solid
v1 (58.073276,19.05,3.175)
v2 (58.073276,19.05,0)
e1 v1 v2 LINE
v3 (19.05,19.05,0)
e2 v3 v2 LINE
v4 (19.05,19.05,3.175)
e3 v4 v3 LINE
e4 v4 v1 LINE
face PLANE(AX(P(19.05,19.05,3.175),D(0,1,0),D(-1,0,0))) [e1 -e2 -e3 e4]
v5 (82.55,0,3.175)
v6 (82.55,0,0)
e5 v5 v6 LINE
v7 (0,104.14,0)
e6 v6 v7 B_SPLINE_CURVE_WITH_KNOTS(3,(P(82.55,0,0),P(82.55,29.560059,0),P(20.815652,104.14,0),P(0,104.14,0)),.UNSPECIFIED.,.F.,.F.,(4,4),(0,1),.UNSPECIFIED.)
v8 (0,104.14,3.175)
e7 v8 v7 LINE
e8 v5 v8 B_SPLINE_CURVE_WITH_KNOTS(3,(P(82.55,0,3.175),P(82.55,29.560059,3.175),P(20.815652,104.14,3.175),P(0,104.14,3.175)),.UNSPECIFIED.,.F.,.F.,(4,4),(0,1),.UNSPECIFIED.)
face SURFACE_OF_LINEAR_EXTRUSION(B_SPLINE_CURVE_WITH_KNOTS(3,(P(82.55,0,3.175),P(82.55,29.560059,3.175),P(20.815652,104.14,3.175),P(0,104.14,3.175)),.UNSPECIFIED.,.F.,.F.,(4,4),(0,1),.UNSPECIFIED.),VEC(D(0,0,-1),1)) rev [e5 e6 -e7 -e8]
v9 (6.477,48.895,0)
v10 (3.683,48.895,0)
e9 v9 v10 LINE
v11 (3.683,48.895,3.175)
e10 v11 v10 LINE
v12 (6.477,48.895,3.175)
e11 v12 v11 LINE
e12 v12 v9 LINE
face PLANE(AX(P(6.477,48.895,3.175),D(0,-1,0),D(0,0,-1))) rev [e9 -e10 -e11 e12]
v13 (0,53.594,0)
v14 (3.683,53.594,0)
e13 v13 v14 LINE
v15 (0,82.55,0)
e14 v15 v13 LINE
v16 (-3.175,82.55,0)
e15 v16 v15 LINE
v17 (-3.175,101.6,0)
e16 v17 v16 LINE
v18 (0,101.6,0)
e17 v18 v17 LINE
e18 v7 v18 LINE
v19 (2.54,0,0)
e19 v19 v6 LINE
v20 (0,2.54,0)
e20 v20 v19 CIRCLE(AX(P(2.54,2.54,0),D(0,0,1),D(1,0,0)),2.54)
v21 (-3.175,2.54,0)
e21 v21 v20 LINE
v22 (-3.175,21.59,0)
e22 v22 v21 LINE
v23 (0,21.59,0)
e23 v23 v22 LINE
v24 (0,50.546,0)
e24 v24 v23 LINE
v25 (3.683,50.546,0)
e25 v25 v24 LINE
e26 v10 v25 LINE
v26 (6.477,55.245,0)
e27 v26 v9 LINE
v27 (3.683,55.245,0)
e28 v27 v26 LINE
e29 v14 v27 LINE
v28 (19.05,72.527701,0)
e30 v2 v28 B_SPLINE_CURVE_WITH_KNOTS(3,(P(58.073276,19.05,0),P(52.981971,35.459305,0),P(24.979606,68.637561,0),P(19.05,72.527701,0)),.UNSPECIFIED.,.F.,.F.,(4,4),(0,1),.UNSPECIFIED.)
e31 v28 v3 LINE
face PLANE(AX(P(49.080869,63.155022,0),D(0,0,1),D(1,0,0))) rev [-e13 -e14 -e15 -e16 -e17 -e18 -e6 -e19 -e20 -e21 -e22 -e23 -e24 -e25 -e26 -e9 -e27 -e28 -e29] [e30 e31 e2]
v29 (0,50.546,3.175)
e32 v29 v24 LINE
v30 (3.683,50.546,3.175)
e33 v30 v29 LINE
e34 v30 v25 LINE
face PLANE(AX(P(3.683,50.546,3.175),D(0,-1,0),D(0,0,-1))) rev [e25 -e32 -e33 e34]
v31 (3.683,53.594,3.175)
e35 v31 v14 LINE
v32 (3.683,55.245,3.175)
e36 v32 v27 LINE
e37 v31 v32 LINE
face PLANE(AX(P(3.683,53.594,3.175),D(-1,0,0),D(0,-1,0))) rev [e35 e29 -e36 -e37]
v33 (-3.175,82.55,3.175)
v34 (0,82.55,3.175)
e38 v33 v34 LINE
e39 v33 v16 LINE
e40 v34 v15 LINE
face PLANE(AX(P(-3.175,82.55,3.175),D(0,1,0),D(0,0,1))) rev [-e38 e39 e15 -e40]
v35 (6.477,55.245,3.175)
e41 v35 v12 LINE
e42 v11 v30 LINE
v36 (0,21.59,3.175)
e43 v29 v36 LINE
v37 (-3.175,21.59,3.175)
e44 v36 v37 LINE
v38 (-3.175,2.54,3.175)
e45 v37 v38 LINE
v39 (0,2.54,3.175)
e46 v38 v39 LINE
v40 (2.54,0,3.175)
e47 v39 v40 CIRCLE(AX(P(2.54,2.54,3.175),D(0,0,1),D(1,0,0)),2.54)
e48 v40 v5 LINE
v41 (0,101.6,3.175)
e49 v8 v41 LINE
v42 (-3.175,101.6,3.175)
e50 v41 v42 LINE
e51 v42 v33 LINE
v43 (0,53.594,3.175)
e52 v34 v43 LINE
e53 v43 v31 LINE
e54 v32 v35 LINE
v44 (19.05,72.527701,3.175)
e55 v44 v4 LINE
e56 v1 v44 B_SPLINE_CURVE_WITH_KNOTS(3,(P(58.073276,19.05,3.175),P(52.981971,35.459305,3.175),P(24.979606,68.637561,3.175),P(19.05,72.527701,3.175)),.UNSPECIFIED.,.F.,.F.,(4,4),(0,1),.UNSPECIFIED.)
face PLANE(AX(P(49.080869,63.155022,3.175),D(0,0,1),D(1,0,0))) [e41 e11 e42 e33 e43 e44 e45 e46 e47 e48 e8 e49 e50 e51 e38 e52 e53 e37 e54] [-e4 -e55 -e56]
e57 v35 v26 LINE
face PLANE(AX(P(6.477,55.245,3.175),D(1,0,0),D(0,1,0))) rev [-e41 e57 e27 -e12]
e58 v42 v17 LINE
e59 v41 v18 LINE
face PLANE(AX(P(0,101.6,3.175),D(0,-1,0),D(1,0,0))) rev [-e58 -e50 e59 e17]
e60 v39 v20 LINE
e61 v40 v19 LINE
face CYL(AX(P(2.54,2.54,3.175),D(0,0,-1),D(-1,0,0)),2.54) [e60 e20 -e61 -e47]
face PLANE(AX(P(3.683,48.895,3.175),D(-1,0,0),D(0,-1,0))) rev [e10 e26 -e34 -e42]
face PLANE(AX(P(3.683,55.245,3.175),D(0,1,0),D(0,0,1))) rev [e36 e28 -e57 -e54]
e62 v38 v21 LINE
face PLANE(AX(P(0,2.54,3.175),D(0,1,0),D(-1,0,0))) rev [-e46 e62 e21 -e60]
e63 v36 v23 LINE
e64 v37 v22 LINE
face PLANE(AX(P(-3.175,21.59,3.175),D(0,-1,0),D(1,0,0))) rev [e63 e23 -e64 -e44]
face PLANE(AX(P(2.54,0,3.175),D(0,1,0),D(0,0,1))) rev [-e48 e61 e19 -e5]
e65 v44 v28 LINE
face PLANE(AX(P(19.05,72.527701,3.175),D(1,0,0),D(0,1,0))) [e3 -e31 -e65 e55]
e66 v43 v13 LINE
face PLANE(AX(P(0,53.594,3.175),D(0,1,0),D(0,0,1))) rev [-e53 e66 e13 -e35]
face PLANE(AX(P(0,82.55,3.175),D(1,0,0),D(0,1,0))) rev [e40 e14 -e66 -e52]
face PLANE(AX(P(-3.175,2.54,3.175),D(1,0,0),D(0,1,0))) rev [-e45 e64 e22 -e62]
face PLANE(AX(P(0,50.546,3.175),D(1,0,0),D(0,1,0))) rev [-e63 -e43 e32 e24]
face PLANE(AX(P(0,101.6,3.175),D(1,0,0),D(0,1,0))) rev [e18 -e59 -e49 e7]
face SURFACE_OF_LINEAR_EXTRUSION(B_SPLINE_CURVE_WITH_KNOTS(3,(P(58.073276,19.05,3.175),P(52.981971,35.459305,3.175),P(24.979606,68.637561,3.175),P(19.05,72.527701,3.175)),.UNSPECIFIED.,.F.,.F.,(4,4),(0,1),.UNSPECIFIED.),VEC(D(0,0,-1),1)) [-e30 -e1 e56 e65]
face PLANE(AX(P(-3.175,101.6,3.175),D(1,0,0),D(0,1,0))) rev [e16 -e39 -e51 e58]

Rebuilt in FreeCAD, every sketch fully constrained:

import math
import FreeCAD as App
import Part
import Sketcher

V = App.Vector
Q = App.Units.Quantity

doc = App.newDocument("Part")
params = doc.addObject("Spreadsheet::Sheet", "Params")
for row, (alias, value) in enumerate([
    ("sketch1_radius", "0.1 in"),
    ("sketch1_height", "0.1 in"),
    ("sketch1_width", "0.11 in"),
    ("sketch1_height2", "1.14 in"),
    ("sketch1_height3", "0.25 in"),
    ("pad1_length", "0.125 in"),
], start=1):
    params.set(f"A{row}", alias)
    params.set(f"B{row}", "=" + value)
    params.setAlias(f"B{row}", alias)

body = doc.addObject("PartDesign::Body", "Body")

# Sketch on XY plane
sketch1 = doc.addObject("Sketcher::SketchObject", "Sketch")
body.addObject(sketch1)
sketch1.AttachmentSupport = (doc.XY_Plane, [""])
sketch1.MapMode = "FlatFace"
sketch1.addGeometry([
    Part.LineSegment(V(0, 82.55, 0), V(0, 53.594, 0)),  # 0
    Part.LineSegment(V(0, 53.594, 0), V(3.683, 53.594, 0)),  # 1
    Part.LineSegment(V(3.683, 53.594, 0), V(3.683, 55.245, 0)),  # 2
    Part.LineSegment(V(3.683, 55.245, 0), V(6.477, 55.245, 0)),  # 3
    Part.LineSegment(V(6.477, 55.245, 0), V(6.477, 48.895, 0)),  # 4
    Part.LineSegment(V(6.477, 48.895, 0), V(3.683, 48.895, 0)),  # 5
    Part.LineSegment(V(3.683, 48.895, 0), V(3.683, 50.546, 0)),  # 6
    Part.LineSegment(V(3.683, 50.546, 0), V(0, 50.546, 0)),  # 7
    Part.LineSegment(V(0, 50.546, 0), V(0, 21.59, 0)),  # 8
    Part.LineSegment(V(0, 21.59, 0), V(-3.175, 21.59, 0)),  # 9
    Part.LineSegment(V(-3.175, 21.59, 0), V(-3.175, 2.54, 0)),  # 10
    Part.LineSegment(V(-3.175, 2.54, 0), V(0, 2.54, 0)),  # 11
    Part.ArcOfCircle(Part.Circle(V(2.54, 2.54, 0), V(0, 0, 1), 2.54), math.radians(-180), math.radians(-90)),  # 12
    Part.LineSegment(V(2.54, 0, 0), V(82.55, 0, 0)),  # 13
    Part.BSplineCurve([V(0, 104.14, 0), V(20.815652, 104.14, 0), V(82.55, 29.560059, 0), V(82.55, 0, 0)], [4, 4], [0, 1], False, 3, [1, 1, 1, 1], False),  # 14
    Part.LineSegment(V(0, 104.14, 0), V(0, 101.6, 0)),  # 15
    Part.LineSegment(V(0, 101.6, 0), V(-3.175, 101.6, 0)),  # 16
    Part.LineSegment(V(-3.175, 101.6, 0), V(-3.175, 82.55, 0)),  # 17
    Part.LineSegment(V(-3.175, 82.55, 0), V(0, 82.55, 0)),  # 18
    Part.LineSegment(V(19.05, 19.05, 0), V(19.05, 72.527701, 0)),  # 19
    Part.BSplineCurve([V(19.05, 72.527701, 0), V(24.979606, 68.637561, 0), V(52.981971, 35.459305, 0), V(58.073276, 19.05, 0)], [4, 4], [0, 1], False, 3, [1, 1, 1, 1], False),  # 20
    Part.LineSegment(V(58.073276, 19.05, 0), V(19.05, 19.05, 0)),  # 21
], False)
sketch1.addConstraint([
    Sketcher.Constraint("Block", 14),
    Sketcher.Constraint("Block", 20),
    Sketcher.Constraint("Coincident", 0, 2, 1, 1),
    Sketcher.Constraint("Coincident", 1, 2, 2, 1),
    Sketcher.Constraint("Coincident", 2, 2, 3, 1),
    Sketcher.Constraint("Coincident", 3, 2, 4, 1),
    Sketcher.Constraint("Coincident", 4, 2, 5, 1),
    Sketcher.Constraint("Coincident", 5, 2, 6, 1),
    Sketcher.Constraint("Coincident", 6, 2, 7, 1),
    Sketcher.Constraint("Coincident", 7, 2, 8, 1),
    Sketcher.Constraint("Coincident", 8, 2, 9, 1),
    Sketcher.Constraint("Coincident", 9, 2, 10, 1),
    Sketcher.Constraint("Coincident", 10, 2, 11, 1),
    Sketcher.Constraint("Coincident", 11, 2, 12, 1),
    Sketcher.Constraint("Tangent", 12, 2, 13, 1),
    Sketcher.Constraint("Coincident", 13, 2, 14, 2),
    Sketcher.Constraint("Coincident", 14, 1, 15, 1),
    Sketcher.Constraint("Coincident", 15, 2, 16, 1),
    Sketcher.Constraint("Coincident", 16, 2, 17, 1),
    Sketcher.Constraint("Coincident", 17, 2, 18, 1),
    Sketcher.Constraint("Coincident", 18, 2, 0, 1),
    Sketcher.Constraint("Coincident", 19, 2, 20, 1),
    Sketcher.Constraint("Coincident", 20, 2, 21, 1),
    Sketcher.Constraint("Coincident", 21, 2, 19, 1),
    Sketcher.Constraint("Vertical", 0),
    Sketcher.Constraint("Horizontal", 1),
    Sketcher.Constraint("Vertical", 2),
    Sketcher.Constraint("Horizontal", 3),
    Sketcher.Constraint("Vertical", 4),
    Sketcher.Constraint("Horizontal", 5),
    Sketcher.Constraint("Vertical", 6),
    Sketcher.Constraint("Horizontal", 7),
    Sketcher.Constraint("Vertical", 8),
    Sketcher.Constraint("Horizontal", 9),
    Sketcher.Constraint("Vertical", 10),
    Sketcher.Constraint("Horizontal", 11),
    Sketcher.Constraint("Horizontal", 13),
    Sketcher.Constraint("Vertical", 15),
    Sketcher.Constraint("Horizontal", 16),
    Sketcher.Constraint("Vertical", 17),
    Sketcher.Constraint("Horizontal", 18),
    Sketcher.Constraint("Vertical", 19),
    Sketcher.Constraint("Horizontal", 21),
    Sketcher.Constraint("PointOnObject", 0, 2, -2),
    Sketcher.Constraint("PointOnObject", 7, 2, -2),
    Sketcher.Constraint("PointOnObject", 11, 2, -2),
    Sketcher.Constraint("Horizontal", 12, 3, 10, 2),
    Sketcher.Constraint("Vertical", 2, 2, 5, 2),
    Sketcher.Constraint("Vertical", 10, 2, 16, 2),
    Sketcher.Constraint("Equal", 2, 6),
    Sketcher.Constraint("Equal", 0, 8),
    Sketcher.Constraint("Equal", 10, 17),
    Sketcher.Constraint("Radius", 12, Q("0.1 in")),
    Sketcher.Constraint("DistanceY", 15, 2, 15, 1, Q("0.1 in")),
    Sketcher.Constraint("DistanceX", 3, 1, 3, 2, Q("0.11 in")),
    Sketcher.Constraint("DistanceY", 0, 2, 0, 1, Q("1.14 in")),
    Sketcher.Constraint("DistanceY", 4, 2, 4, 1, Q("0.25 in")),
    Sketcher.Constraint("DistanceY", 10, 2, 10, 1, Q("0.75 in")),
    Sketcher.Constraint("DistanceX", 1, 1, 1, 2, Q("0.145 in")),
    Sketcher.Constraint("DistanceX", 9, 2, 9, 1, Q("0.125 in")),
])
sketch1.setExpression("Constraints[52]", "Params.sketch1_radius")
sketch1.setExpression("Constraints[53]", "Params.sketch1_height")
sketch1.setExpression("Constraints[54]", "Params.sketch1_width")
sketch1.setExpression("Constraints[55]", "Params.sketch1_height2")
sketch1.setExpression("Constraints[56]", "Params.sketch1_height3")
pad1 = doc.addObject("PartDesign::Pad", "Pad")
body.addObject(pad1)
pad1.Profile = sketch1
pad1.setExpression("Length", "Params.pad1_length")

doc.recompute()
